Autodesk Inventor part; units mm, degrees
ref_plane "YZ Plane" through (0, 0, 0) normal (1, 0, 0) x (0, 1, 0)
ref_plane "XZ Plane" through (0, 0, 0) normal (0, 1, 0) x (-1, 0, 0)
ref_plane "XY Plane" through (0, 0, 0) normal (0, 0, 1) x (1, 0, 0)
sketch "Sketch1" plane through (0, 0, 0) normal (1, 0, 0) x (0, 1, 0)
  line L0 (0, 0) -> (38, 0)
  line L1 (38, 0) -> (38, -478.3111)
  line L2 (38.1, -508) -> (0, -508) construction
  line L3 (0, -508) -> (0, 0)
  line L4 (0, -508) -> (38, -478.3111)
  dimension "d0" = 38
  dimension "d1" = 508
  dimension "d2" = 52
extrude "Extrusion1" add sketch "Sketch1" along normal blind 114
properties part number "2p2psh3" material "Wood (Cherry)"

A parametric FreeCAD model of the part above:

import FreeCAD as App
import Part
import Sketcher
from FreeCAD import Vector
Q = App.Units.Quantity

doc = App.newDocument("Part")
body = doc.addObject("PartDesign::Body", "Body")

# Sketch on YZ plane
sketch1 = body.newObject("Sketcher::SketchObject", "Sketch")
sketch1.AttachmentSupport = (doc.getObject("YZ_Plane"), [""])
sketch1.MapMode = "FlatFace"
sketch1.addGeometry([
    Part.LineSegment(Vector(38, 0, 0), Vector(0, 0, 0)),
    Part.LineSegment(Vector(0, 0, 0), Vector(0, -508, 0)),
    Part.LineSegment(Vector(0, -508, 0), Vector(38, -478, 0)),
    Part.LineSegment(Vector(38, -478, 0), Vector(38, 0, 0)),
], False)
sketch1.addConstraint([
    Sketcher.Constraint("Coincident", 0, 2, 1, 1),
    Sketcher.Constraint("Coincident", 1, 2, 2, 1),
    Sketcher.Constraint("Coincident", 2, 2, 3, 1),
    Sketcher.Constraint("Coincident", 3, 2, 0, 1),
    Sketcher.Constraint("Horizontal", 0),
    Sketcher.Constraint("Vertical", 1),
    Sketcher.Constraint("Vertical", 3),
    Sketcher.Constraint("Coincident", 0, 2, -1, 1),
    Sketcher.Constraint("DistanceX", 0, 2, 0, 1, Q("38 mm")),
    Sketcher.Constraint("DistanceY", 1, 2, 1, 1, Q("508 mm")),
    Sketcher.Constraint("Angle", 2, Q("38 deg")),
])
pad1 = body.newObject("PartDesign::Pad", "Pad")
pad1.Profile = sketch1
pad1.Length = 114

doc.recompute()
